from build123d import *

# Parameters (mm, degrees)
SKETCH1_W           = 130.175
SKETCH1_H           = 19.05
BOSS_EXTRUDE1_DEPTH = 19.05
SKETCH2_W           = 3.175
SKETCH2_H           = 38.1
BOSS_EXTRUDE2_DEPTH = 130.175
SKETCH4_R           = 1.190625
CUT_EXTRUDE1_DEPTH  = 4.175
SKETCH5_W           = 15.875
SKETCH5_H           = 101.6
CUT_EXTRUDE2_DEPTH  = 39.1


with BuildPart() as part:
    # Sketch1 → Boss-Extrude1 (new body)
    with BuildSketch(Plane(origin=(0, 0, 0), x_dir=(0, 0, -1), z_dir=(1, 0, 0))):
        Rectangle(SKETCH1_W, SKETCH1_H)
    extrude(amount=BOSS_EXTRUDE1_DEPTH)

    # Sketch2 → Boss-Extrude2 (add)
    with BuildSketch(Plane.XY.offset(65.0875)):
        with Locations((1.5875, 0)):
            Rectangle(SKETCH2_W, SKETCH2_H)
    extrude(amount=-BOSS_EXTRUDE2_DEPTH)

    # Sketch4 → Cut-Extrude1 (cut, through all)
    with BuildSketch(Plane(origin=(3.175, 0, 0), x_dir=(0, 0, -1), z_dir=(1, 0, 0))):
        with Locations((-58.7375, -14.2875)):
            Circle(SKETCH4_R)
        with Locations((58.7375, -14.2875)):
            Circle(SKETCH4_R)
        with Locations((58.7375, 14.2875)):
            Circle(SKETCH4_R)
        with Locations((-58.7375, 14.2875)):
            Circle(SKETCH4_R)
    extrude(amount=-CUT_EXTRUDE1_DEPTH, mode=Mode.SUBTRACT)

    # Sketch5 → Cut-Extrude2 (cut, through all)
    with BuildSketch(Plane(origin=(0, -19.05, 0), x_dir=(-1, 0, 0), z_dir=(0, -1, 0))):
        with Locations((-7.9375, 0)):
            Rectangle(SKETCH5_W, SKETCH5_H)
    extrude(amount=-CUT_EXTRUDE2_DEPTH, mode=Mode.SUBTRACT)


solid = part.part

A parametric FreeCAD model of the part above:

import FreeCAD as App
import Part
import Sketcher

V = App.Vector
Q = App.Units.Quantity


def add_polygon(sketch, points):
    """Adds a closed chain of lines whose ends are joined by coincident constraints."""
    first, n = sketch.GeometryCount, len(points)
    for a, b in zip(points, points[1:] + points[:1]):
        sketch.addGeometry(Part.LineSegment(App.Vector(*a, 0), App.Vector(*b, 0)), False)
    for i in range(n):
        sketch.addConstraint(Sketcher.Constraint("Coincident", first + i, 2, first + (i + 1) % n, 1))

doc = App.newDocument("Part")
body = doc.addObject("PartDesign::Body", "Body")

# Sketch on YZ plane
sketch1 = body.newObject("Sketcher::SketchObject", "Sketch")
sketch1.AttachmentSupport = (doc.getObject("YZ_Plane"), [""])
sketch1.MapMode = "FlatFace"
add_polygon(sketch1, [(9.525, 65.0875), (-9.525, 65.0875), (-9.525, -65.0875), (9.525, -65.0875)])  # lines 0-3
sketch1.addConstraint(Sketcher.Constraint("Horizontal", 0))
sketch1.addConstraint(Sketcher.Constraint("Vertical", 1))
sketch1.addConstraint(Sketcher.Constraint("Horizontal", 2))
sketch1.addConstraint(Sketcher.Constraint("Vertical", 3))
sketch1.addConstraint(Sketcher.Constraint("Symmetric", 0, 2, 2, 2, -1, 1))
sketch1.addConstraint(Sketcher.Constraint("DistanceX", 0, 2, 0, 1, Q("0.75 in")))
sketch1.addConstraint(Sketcher.Constraint("DistanceY", 1, 2, 1, 1, Q("5.125 in")))
pad1 = body.newObject("PartDesign::Pad", "Pad")
pad1.Profile = sketch1
pad1.Length = Q("0.75 in")

# Sketch on XY plane
sketch2 = body.newObject("Sketcher::SketchObject", "Sketch001")
sketch2.AttachmentSupport = (doc.getObject("XY_Plane"), [""])
sketch2.MapMode = "FlatFace"
sketch2.AttachmentOffset = App.Placement(V(0, 0, 2.5625 * 25.4), App.Rotation())
add_polygon(sketch2, [(0, 19.05), (0, -19.05), (3.175, -19.05), (3.175, 19.05)])  # lines 0-3
sketch2.addConstraint(Sketcher.Constraint("Vertical", 0))
sketch2.addConstraint(Sketcher.Constraint("Horizontal", 1))
sketch2.addConstraint(Sketcher.Constraint("Vertical", 2))
sketch2.addConstraint(Sketcher.Constraint("Horizontal", 3))
sketch2.addConstraint(Sketcher.Constraint("Symmetric", 0, 2, 3, 2, -1, 1))
sketch2.addConstraint(Sketcher.Constraint("DistanceY", 0, 2, 0, 1, Q("1.5 in")))
sketch2.addConstraint(Sketcher.Constraint("DistanceX", 1, 1, 1, 2, Q("0.125 in")))
pad2 = body.newObject("PartDesign::Pad", "Pad001")
pad2.Profile = sketch2
pad2.Length = Q("5.125 in")
pad2.Reversed = True

# Sketch on YZ plane
sketch3 = body.newObject("Sketcher::SketchObject", "Sketch002")
sketch3.AttachmentSupport = (doc.getObject("YZ_Plane"), [""])
sketch3.MapMode = "FlatFace"
sketch3.AttachmentOffset = App.Placement(V(0, 0, 0.125 * 25.4), App.Rotation())
sketch3.addGeometry(Part.Circle(V(-14.2875, 58.7375, 0), V(0, 0, 1), 1.190625), False)
sketch3.addGeometry(Part.Circle(V(-14.2875, -58.7375, 0), V(0, 0, 1), 1.190625), False)
sketch3.addGeometry(Part.Circle(V(14.2875, -58.7375, 0), V(0, 0, 1), 1.190625), False)
sketch3.addGeometry(Part.Circle(V(14.2875, 58.7375, 0), V(0, 0, 1), 1.190625), False)
sketch3.addConstraint(Sketcher.Constraint("Equal", 0, 1))
sketch3.addConstraint(Sketcher.Constraint("Equal", 1, 2))
sketch3.addConstraint(Sketcher.Constraint("Equal", 2, 3))
sketch3.addConstraint(Sketcher.Constraint("Symmetric", 0, 3, 2, 3, -1, 1))
sketch3.addConstraint(Sketcher.Constraint("Symmetric", 1, 3, 3, 3, -1, 1))
sketch3.addConstraint(Sketcher.Constraint("Symmetric", 1, 3, 2, 3, -2))
sketch3.addConstraint(Sketcher.Constraint("Diameter", 0, Q("0.09375 in")))
sketch3.addConstraint(Sketcher.Constraint("DistanceX", 0, 3, -1, 1, Q("0.5625 in")))
sketch3.addConstraint(Sketcher.Constraint("DistanceY", -1, 1, 0, 3, Q("2.3125 in")))
pocket1 = body.newObject("PartDesign::Pocket", "Pocket")
pocket1.Profile = sketch3
pocket1.Type = "ThroughAll"

# Sketch on XZ plane
sketch4 = body.newObject("Sketcher::SketchObject", "Sketch003")
sketch4.AttachmentSupport = (doc.getObject("XZ_Plane"), [""])
sketch4.MapMode = "FlatFace"
sketch4.AttachmentOffset = App.Placement(V(0, 0, 0.75 * 25.4), App.Rotation())
add_polygon(sketch4, [(15.875, -50.8), (15.875, 50.8), (0, 50.8), (0, -50.8)])  # lines 0-3
sketch4.addConstraint(Sketcher.Constraint("Vertical", 0))
sketch4.addConstraint(Sketcher.Constraint("Horizontal", 1))
sketch4.addConstraint(Sketcher.Constraint("Vertical", 2))
sketch4.addConstraint(Sketcher.Constraint("Horizontal", 3))
sketch4.addConstraint(Sketcher.Constraint("Symmetric", 1, 2, 2, 2, -1, 1))
sketch4.addConstraint(Sketcher.Constraint("DistanceY", 0, 1, 0, 2, Q("4 in")))
sketch4.addConstraint(Sketcher.Constraint("DistanceX", 1, 2, 1, 1, Q("0.625 in")))
pocket2 = body.newObject("PartDesign::Pocket", "Pocket001")
pocket2.Profile = sketch4
pocket2.Type = "ThroughAll"

doc.recompute()
